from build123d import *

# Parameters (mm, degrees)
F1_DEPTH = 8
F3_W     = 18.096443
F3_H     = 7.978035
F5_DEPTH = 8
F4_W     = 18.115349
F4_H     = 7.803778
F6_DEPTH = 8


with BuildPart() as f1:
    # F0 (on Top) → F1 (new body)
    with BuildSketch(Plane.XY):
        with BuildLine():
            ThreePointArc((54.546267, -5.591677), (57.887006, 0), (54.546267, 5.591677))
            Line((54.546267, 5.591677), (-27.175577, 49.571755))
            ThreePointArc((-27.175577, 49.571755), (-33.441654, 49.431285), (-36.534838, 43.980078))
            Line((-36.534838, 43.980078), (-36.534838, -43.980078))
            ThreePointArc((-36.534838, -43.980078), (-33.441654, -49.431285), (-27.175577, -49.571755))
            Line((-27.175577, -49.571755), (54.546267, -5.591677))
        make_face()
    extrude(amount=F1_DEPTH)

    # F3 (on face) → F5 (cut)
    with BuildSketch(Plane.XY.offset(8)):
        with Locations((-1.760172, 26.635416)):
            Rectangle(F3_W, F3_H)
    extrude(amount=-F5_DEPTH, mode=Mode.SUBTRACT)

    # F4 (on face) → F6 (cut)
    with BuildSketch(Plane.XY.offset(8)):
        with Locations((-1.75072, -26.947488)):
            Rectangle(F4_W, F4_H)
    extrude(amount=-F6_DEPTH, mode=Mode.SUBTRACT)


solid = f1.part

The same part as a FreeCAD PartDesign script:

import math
import FreeCAD as App
import Part
import Sketcher

V = App.Vector
Q = App.Units.Quantity


def add_polygon(sketch, points):
    """Adds a closed chain of lines whose ends are joined by coincident constraints."""
    first, n = sketch.GeometryCount, len(points)
    for a, b in zip(points, points[1:] + points[:1]):
        sketch.addGeometry(Part.LineSegment(App.Vector(*a, 0), App.Vector(*b, 0)), False)
    for i in range(n):
        sketch.addConstraint(Sketcher.Constraint("Coincident", first + i, 2, first + (i + 1) % n, 1))

doc = App.newDocument("Part")
params = doc.addObject("Spreadsheet::Sheet", "Params")
for row, (alias, value) in enumerate([
    ("sketch1_radius", "0.25 in"),
    ("pad1_length", "8 mm"),
    ("pocket1_length", "8 mm"),
    ("pocket2_length", "8 mm"),
], start=1):
    params.set(f"A{row}", alias)
    params.set(f"B{row}", "=" + value)
    params.setAlias(f"B{row}", alias)

body = doc.addObject("PartDesign::Body", "Body")

# Sketch on XY plane
sketch1 = doc.addObject("Sketcher::SketchObject", "Sketch")
body.addObject(sketch1)
sketch1.AttachmentSupport = (doc.XY_Plane, [""])
sketch1.MapMode = "FlatFace"
sketch1.addGeometry(Part.ArcOfCircle(Part.Circle(V(51.537005, 0, 0), V(0, 0, 1), 6.350001), math.radians(-61.712285), math.radians(61.712285)), False)
sketch1.addGeometry(Part.LineSegment(V(54.546267, 5.591677, 0), V(-27.175577, 49.571755, 0)), False)
sketch1.addGeometry(Part.ArcOfCircle(Part.Circle(V(-30.184838, 43.980079, 0), V(0, 0, 1), 6.35), math.radians(61.712282), math.radians(180.000009)), False)
sketch1.addGeometry(Part.LineSegment(V(-36.534838, 43.980078, 0), V(-36.534838, -43.980078, 0)), False)
sketch1.addGeometry(Part.ArcOfCircle(Part.Circle(V(-30.184838, -43.980079, 0), V(0, 0, 1), 6.35), math.radians(179.999991), math.radians(298.287718)), False)
sketch1.addGeometry(Part.LineSegment(V(-27.175577, -49.571755, 0), V(54.546267, -5.591677, 0)), False)
sketch1.addConstraint(Sketcher.Constraint("Tangent", 0, 2, 1, 1))
sketch1.addConstraint(Sketcher.Constraint("Tangent", 1, 2, 2, 1))
sketch1.addConstraint(Sketcher.Constraint("Tangent", 2, 2, 3, 1))
sketch1.addConstraint(Sketcher.Constraint("Tangent", 3, 2, 4, 1))
sketch1.addConstraint(Sketcher.Constraint("Tangent", 4, 2, 5, 1))
sketch1.addConstraint(Sketcher.Constraint("Tangent", 5, 2, 0, 1))
sketch1.addConstraint(Sketcher.Constraint("Vertical", 3))
sketch1.addConstraint(Sketcher.Constraint("Equal", 0, 2))
sketch1.addConstraint(Sketcher.Constraint("Equal", 2, 4))
sketch1.addConstraint(Sketcher.Constraint("Symmetric", 1, 2, 4, 2, -1))
sketch1.addConstraint(Sketcher.Constraint("Radius", 0, Q("0.25 in")))
sketch1.addConstraint(Sketcher.Constraint("DistanceY", 0, 2, 2, 3, Q("38.388402 mm")))
sketch1.addConstraint(Sketcher.Constraint("Distance", 1, Q("92.804671 mm")))
sketch1.addConstraint(Sketcher.Constraint("DistanceX", 2, 3, -1, 1, Q("30.184838 mm")))
sketch1.setExpression("Constraints[10]", "Params.sketch1_radius")
pad1 = doc.addObject("PartDesign::Pad", "Pad")
body.addObject(pad1)
pad1.Profile = sketch1
pad1.setExpression("Length", "Params.pad1_length")

# Sketch on XY plane
sketch2 = doc.addObject("Sketcher::SketchObject", "Sketch001")
body.addObject(sketch2)
sketch2.AttachmentSupport = (doc.XY_Plane, [""])
sketch2.MapMode = "FlatFace"
sketch2.AttachmentOffset = App.Placement(V(0, 0, 8), App.Rotation())
add_polygon(sketch2, [(-10.808393, 30.624433), (-10.808393, 22.646399), (7.288049, 22.646399), (7.288049, 30.624433)])  # lines 0-3
sketch2.addConstraint(Sketcher.Constraint("Vertical", 0))
sketch2.addConstraint(Sketcher.Constraint("Horizontal", 1))
sketch2.addConstraint(Sketcher.Constraint("Vertical", 2))
sketch2.addConstraint(Sketcher.Constraint("Horizontal", 3))
sketch2.addConstraint(Sketcher.Constraint("DistanceY", -1, 1, 0, 2, Q("22.646399 mm")))
sketch2.addConstraint(Sketcher.Constraint("DistanceX", 1, 1, 1, 2, Q("18.096443 mm")))
sketch2.addConstraint(Sketcher.Constraint("DistanceY", 0, 2, 0, 1, Q("7.978035 mm")))
sketch2.addConstraint(Sketcher.Constraint("DistanceX", -1, 1, 1, 2, Q("7.288049 mm")))
pocket1 = doc.addObject("PartDesign::Pocket", "Pocket")
body.addObject(pocket1)
pocket1.Profile = sketch2
pocket1.setExpression("Length", "Params.pocket1_length")

# Sketch on XY plane
sketch3 = doc.addObject("Sketcher::SketchObject", "Sketch002")
body.addObject(sketch3)
sketch3.AttachmentSupport = (doc.XY_Plane, [""])
sketch3.MapMode = "FlatFace"
sketch3.AttachmentOffset = App.Placement(V(0, 0, 8), App.Rotation())
add_polygon(sketch3, [(-10.808395, -23.045599), (-10.808395, -30.849377), (7.306954, -30.849377), (7.306954, -23.045599)])  # lines 0-3
sketch3.addConstraint(Sketcher.Constraint("Vertical", 0))
sketch3.addConstraint(Sketcher.Constraint("Horizontal", 1))
sketch3.addConstraint(Sketcher.Constraint("Vertical", 2))
sketch3.addConstraint(Sketcher.Constraint("Horizontal", 3))
sketch3.addConstraint(Sketcher.Constraint("DistanceX", 1, 1, 1, 2, Q("18.115349 mm")))
sketch3.addConstraint(Sketcher.Constraint("DistanceY", 0, 2, 0, 1, Q("7.803778 mm")))
sketch3.addConstraint(Sketcher.Constraint("DistanceY", 2, 2, -1, 1, Q("23.045599 mm")))
sketch3.addConstraint(Sketcher.Constraint("DistanceX", 0, 2, -1, 1, Q("10.808395 mm")))
pocket2 = doc.addObject("PartDesign::Pocket", "Pocket001")
body.addObject(pocket2)
pocket2.Profile = sketch3
pocket2.setExpression("Length", "Params.pocket2_length")

doc.recompute()
